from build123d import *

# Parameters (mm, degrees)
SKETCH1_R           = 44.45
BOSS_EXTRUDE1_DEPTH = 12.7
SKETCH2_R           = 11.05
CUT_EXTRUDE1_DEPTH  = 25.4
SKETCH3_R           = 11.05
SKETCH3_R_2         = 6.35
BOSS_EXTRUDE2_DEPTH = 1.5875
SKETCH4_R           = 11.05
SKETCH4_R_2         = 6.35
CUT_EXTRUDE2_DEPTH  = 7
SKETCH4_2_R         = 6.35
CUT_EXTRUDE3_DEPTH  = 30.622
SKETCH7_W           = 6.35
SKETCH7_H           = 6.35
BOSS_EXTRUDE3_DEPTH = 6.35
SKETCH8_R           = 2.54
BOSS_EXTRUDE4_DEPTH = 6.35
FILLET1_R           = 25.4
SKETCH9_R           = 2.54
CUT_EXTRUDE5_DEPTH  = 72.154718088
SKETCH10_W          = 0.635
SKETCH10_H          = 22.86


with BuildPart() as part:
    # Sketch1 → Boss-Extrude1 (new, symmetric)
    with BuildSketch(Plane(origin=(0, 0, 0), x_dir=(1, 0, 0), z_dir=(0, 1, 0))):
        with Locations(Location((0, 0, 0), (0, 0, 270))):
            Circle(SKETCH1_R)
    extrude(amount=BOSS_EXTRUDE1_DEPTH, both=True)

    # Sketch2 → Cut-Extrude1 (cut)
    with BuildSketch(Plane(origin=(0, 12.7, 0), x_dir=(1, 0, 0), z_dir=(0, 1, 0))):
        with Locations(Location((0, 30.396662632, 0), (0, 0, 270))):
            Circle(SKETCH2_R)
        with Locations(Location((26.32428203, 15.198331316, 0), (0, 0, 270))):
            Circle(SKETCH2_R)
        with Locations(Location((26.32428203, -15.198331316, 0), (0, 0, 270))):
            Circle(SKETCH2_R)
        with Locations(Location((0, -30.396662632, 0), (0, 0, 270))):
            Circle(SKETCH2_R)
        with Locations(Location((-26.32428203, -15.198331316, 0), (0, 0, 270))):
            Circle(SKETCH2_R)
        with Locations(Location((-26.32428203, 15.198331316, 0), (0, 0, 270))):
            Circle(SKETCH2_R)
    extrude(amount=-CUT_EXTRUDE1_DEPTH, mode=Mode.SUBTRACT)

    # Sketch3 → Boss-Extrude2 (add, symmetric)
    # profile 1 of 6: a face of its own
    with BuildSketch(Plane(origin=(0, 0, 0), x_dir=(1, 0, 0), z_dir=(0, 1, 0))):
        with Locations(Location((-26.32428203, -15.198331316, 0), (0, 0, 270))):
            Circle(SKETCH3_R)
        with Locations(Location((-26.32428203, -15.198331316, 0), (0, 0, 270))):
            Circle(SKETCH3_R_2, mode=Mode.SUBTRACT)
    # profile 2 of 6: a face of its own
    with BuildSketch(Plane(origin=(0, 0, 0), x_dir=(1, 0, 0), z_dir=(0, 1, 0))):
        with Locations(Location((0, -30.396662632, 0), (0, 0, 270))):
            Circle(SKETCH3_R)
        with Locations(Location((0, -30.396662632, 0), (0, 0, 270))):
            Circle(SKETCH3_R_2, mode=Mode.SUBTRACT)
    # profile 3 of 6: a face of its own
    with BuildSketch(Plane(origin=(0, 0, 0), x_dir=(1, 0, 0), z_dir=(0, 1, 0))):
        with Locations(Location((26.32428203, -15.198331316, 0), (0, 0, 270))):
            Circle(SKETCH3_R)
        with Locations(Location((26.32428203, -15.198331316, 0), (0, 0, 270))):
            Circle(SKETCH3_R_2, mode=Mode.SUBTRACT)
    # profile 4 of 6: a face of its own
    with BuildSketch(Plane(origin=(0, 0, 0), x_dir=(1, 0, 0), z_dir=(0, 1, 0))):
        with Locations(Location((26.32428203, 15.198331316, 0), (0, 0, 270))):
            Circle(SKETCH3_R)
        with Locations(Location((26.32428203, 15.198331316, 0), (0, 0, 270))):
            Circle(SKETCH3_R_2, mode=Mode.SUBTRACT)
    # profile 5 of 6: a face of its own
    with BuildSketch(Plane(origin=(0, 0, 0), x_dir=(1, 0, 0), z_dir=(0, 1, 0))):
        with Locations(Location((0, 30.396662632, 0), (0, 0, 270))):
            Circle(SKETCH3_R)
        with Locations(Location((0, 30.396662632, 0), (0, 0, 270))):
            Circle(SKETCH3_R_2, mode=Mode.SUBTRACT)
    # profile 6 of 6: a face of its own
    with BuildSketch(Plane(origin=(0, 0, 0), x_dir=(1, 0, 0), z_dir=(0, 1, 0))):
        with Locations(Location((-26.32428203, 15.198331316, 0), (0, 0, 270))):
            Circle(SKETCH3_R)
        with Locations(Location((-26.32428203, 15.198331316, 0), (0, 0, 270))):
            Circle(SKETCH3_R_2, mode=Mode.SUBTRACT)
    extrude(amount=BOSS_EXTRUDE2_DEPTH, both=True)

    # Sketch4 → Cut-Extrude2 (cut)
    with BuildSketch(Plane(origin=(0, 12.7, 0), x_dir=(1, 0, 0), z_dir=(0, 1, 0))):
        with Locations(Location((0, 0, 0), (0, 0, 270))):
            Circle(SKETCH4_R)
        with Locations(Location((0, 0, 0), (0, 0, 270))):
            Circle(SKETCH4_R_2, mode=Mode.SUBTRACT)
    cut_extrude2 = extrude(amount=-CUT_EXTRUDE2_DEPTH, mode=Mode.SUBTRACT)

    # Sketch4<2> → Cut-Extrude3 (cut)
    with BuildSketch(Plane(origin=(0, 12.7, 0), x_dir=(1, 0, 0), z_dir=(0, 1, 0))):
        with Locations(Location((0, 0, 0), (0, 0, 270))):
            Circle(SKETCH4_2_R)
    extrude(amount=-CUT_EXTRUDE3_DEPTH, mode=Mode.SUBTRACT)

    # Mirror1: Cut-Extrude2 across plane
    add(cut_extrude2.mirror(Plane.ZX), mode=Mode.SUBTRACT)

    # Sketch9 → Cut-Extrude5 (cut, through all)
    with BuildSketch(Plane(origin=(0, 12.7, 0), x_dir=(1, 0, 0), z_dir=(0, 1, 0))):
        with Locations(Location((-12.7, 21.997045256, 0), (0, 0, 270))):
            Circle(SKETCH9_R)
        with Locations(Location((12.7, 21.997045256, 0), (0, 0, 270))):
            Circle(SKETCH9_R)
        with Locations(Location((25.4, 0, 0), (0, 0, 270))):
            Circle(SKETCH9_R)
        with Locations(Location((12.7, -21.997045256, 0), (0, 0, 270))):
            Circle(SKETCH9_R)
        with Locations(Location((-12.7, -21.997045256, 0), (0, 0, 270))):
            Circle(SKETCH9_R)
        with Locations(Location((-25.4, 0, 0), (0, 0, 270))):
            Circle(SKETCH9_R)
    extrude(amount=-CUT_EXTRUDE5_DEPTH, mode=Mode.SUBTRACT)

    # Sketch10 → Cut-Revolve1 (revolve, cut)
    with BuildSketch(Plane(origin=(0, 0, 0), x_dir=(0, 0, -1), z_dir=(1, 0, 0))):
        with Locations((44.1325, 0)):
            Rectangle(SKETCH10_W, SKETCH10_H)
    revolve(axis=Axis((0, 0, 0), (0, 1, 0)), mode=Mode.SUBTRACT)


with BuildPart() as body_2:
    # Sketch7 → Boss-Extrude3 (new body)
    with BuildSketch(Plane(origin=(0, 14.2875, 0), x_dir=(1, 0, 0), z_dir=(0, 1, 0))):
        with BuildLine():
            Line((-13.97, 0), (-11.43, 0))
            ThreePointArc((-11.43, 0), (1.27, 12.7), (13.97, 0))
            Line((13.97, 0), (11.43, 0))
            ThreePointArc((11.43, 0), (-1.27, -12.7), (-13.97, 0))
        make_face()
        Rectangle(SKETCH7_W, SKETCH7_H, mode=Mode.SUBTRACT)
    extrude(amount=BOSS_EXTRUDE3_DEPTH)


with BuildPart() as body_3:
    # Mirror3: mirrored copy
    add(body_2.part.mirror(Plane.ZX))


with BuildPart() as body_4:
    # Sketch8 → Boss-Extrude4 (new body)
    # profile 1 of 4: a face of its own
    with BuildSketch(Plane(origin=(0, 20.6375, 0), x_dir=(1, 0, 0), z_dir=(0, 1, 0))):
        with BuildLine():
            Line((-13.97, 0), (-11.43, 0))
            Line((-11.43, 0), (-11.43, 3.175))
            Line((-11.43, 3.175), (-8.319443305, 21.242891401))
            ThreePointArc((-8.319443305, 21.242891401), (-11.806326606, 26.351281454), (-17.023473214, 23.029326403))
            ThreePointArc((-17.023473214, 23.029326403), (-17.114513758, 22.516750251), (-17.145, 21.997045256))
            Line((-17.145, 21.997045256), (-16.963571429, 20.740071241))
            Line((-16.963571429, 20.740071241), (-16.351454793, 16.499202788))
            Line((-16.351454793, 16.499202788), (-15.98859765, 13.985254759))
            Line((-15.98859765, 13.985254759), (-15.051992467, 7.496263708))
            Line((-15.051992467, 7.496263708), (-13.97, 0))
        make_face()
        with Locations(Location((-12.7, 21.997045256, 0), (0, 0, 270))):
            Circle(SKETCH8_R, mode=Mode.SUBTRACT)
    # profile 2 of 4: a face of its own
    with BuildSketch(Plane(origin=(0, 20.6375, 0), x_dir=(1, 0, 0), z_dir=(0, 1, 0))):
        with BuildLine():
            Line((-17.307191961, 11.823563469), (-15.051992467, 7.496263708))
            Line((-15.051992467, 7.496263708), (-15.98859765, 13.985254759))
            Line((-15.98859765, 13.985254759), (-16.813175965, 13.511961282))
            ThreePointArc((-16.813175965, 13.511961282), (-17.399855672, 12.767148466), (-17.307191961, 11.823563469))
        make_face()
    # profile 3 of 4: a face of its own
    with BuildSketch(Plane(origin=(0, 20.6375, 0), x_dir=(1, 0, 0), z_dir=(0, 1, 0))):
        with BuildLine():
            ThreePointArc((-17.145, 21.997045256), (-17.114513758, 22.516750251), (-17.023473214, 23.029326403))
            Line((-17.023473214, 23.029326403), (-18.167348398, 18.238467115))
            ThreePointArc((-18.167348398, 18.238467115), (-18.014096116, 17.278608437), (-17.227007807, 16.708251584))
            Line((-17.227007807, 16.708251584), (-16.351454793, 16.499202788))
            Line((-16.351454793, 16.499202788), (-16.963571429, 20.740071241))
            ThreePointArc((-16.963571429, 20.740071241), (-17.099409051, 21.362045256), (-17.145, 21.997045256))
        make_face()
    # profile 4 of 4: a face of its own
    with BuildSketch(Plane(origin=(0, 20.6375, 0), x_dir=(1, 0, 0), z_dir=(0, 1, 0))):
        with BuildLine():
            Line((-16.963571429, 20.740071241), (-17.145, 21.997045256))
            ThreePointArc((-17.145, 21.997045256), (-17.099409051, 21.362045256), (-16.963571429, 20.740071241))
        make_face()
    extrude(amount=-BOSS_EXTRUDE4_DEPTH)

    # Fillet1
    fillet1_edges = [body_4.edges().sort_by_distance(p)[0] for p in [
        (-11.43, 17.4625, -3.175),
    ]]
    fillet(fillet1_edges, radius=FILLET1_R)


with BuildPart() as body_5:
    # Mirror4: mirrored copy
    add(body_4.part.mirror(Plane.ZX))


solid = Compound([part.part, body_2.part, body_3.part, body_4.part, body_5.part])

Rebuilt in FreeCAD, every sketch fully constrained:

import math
import FreeCAD as App
import Part
import Sketcher
Q = App.Units.Quantity


def edges_at(feature, points):
    """Names of the edges that pass closest to the given points."""
    edges = feature.Shape.Edges
    near = lambda p: min(range(len(edges)), key=lambda i: edges[i].distToShape(Part.Vertex(*p))[0])
    return sorted({f"Edge{near(p) + 1}" for p in points})

doc = App.newDocument("Part")
body = doc.addObject("PartDesign::Body", "Body")

sketch1 = body.newObject("Sketcher::SketchObject", "Sketch")
sketch1.AttachmentSupport = (doc.getObject("XZ_Plane"), [""])
sketch1.MapMode = "FlatFace"
sketch1.addGeometry(Part.Circle(App.Vector(0, 0, 0), App.Vector(0, 0, 1), 44), False)
sketch1.addConstraint([
    Sketcher.Constraint("Coincident", 0, 3, -1, 1),
    Sketcher.Constraint("Diameter", 0, Q("3.5 in")),
])
pad1 = body.newObject("PartDesign::Pad", "Pad")
pad1.Profile = sketch1
pad1.Length = Q("1 in")
pad1.Midplane = True

sketch2 = body.newObject("Sketcher::SketchObject", "Sketch001")
sketch2.AttachmentSupport = (doc.getObject("XZ_Plane"), [""])
sketch2.MapMode = "FlatFace"
sketch2.AttachmentOffset = App.Placement(App.Vector(0, 0, -0.5 * 25.4), App.Rotation())
sketch2.addGeometry([
    Part.Circle(App.Vector(0, -30, 0), App.Vector(0, 0, 1), 11),
    Part.Circle(App.Vector(26, -15, 0), App.Vector(0, 0, 1), 11),
    Part.Circle(App.Vector(26, 15, 0), App.Vector(0, 0, 1), 11),
    Part.Circle(App.Vector(0, 30, 0), App.Vector(0, 0, 1), 11),
    Part.Circle(App.Vector(-26, 15, 0), App.Vector(0, 0, 1), 11),
    Part.Circle(App.Vector(-26, -15, 0), App.Vector(0, 0, 1), 11),
], False)
sketch2.addConstraint([
    Sketcher.Constraint("Equal", 0, 1),
    Sketcher.Constraint("Equal", 1, 2),
    Sketcher.Constraint("Equal", 2, 3),
    Sketcher.Constraint("Equal", 3, 4),
    Sketcher.Constraint("Equal", 4, 5),
    Sketcher.Constraint("Symmetric", 0, 3, 3, 3, -1, 1),
    Sketcher.Constraint("Symmetric", 1, 3, 4, 3, -1, 1),
    Sketcher.Constraint("Symmetric", 2, 3, 5, 3, -1, 1),
    Sketcher.Constraint("Symmetric", 2, 3, 4, 3, -2),
    Sketcher.Constraint("PointOnObject", 0, 3, -2),
    Sketcher.Constraint("Diameter", 0, 22.1),
    Sketcher.Constraint("DistanceY", 1, 3, -1, 1, 15.198331),
    Sketcher.Constraint("DistanceY", 0, 3, 1, 3, 15.198331),
    Sketcher.Constraint("DistanceX", -1, 1, 1, 3, 26.324282),
])
pocket1 = body.newObject("PartDesign::Pocket", "Pocket")
pocket1.Profile = sketch2
pocket1.Length = Q("1 in")
pocket1.Reversed = True

sketch3 = body.newObject("Sketcher::SketchObject", "Sketch002")
sketch3.AttachmentSupport = (doc.getObject("XZ_Plane"), [""])
sketch3.MapMode = "FlatFace"
sketch3.addGeometry([
    Part.Circle(App.Vector(-26, 15, 0), App.Vector(0, 0, 1), 11),
    Part.Circle(App.Vector(-26, 15, 0), App.Vector(0, 0, 1), 6),
    Part.Circle(App.Vector(0, 30, 0), App.Vector(0, 0, 1), 11),
    Part.Circle(App.Vector(0, 30, 0), App.Vector(0, 0, 1), 6),
    Part.Circle(App.Vector(26, 15, 0), App.Vector(0, 0, 1), 11),
    Part.Circle(App.Vector(26, 15, 0), App.Vector(0, 0, 1), 6),
    Part.Circle(App.Vector(26, -15, 0), App.Vector(0, 0, 1), 11),
    Part.Circle(App.Vector(26, -15, 0), App.Vector(0, 0, 1), 6),
    Part.Circle(App.Vector(0, -30, 0), App.Vector(0, 0, 1), 11),
    Part.Circle(App.Vector(0, -30, 0), App.Vector(0, 0, 1), 6),
    Part.Circle(App.Vector(-26, -15, 0), App.Vector(0, 0, 1), 11),
    Part.Circle(App.Vector(-26, -15, 0), App.Vector(0, 0, 1), 6),
], False)
sketch3.addConstraint([
    Sketcher.Constraint("Coincident", 1, 3, 0, 3),
    Sketcher.Constraint("Coincident", 3, 3, 2, 3),
    Sketcher.Constraint("Coincident", 5, 3, 4, 3),
    Sketcher.Constraint("Coincident", 7, 3, 6, 3),
    Sketcher.Constraint("Coincident", 9, 3, 8, 3),
    Sketcher.Constraint("Coincident", 11, 3, 10, 3),
    Sketcher.Constraint("Equal", 0, 2),
    Sketcher.Constraint("Equal", 1, 3),
    Sketcher.Constraint("Equal", 2, 4),
    Sketcher.Constraint("Equal", 3, 5),
    Sketcher.Constraint("Equal", 4, 6),
    Sketcher.Constraint("Equal", 5, 7),
    Sketcher.Constraint("Equal", 6, 8),
    Sketcher.Constraint("Equal", 7, 9),
    Sketcher.Constraint("Equal", 8, 10),
    Sketcher.Constraint("Equal", 9, 11),
    Sketcher.Constraint("Symmetric", 0, 3, 6, 3, -1, 1),
    Sketcher.Constraint("Symmetric", 2, 3, 8, 3, -1, 1),
    Sketcher.Constraint("Symmetric", 4, 3, 10, 3, -1, 1),
    Sketcher.Constraint("Symmetric", 0, 3, 4, 3, -2),
    Sketcher.Constraint("PointOnObject", 2, 3, -2),
    Sketcher.Constraint("Diameter", 1, Q("0.5 in")),
    Sketcher.Constraint("Diameter", 0, 22.1),
    Sketcher.Constraint("DistanceY", -1, 1, 0, 3, 15.198331),
    Sketcher.Constraint("DistanceY", 0, 3, 2, 3, 15.198331),
    Sketcher.Constraint("DistanceX", 0, 3, -1, 1, 26.324282),
])
pad2 = body.newObject("PartDesign::Pad", "Pad001")
pad2.Profile = sketch3
pad2.Length = Q("0.125 in")
pad2.Midplane = True

sketch4 = body.newObject("Sketcher::SketchObject", "Sketch003")
sketch4.AttachmentSupport = (doc.getObject("XZ_Plane"), [""])
sketch4.MapMode = "FlatFace"
sketch4.AttachmentOffset = App.Placement(App.Vector(0, 0, -0.5 * 25.4), App.Rotation())
sketch4.addGeometry([
    Part.Circle(App.Vector(0, 0, 0), App.Vector(0, 0, 1), 11),
    Part.Circle(App.Vector(0, 0, 0), App.Vector(0, 0, 1), 6),
], False)
sketch4.addConstraint([
    Sketcher.Constraint("Coincident", 0, 3, -1, 1),
    Sketcher.Constraint("Coincident", 1, 3, -1, 1),
    Sketcher.Constraint("Diameter", 1, Q("0.5 in")),
    Sketcher.Constraint("Diameter", 0, 22.1),
])
pocket2 = body.newObject("PartDesign::Pocket", "Pocket001")
pocket2.Profile = sketch4
pocket2.Length = 7
pocket2.Reversed = True

sketch5 = body.newObject("Sketcher::SketchObject", "Sketch004")
sketch5.AttachmentSupport = (doc.getObject("XZ_Plane"), [""])
sketch5.MapMode = "FlatFace"
sketch5.AttachmentOffset = App.Placement(App.Vector(0, 0, -0.5 * 25.4), App.Rotation())
sketch5.addGeometry(Part.Circle(App.Vector(0, 0, 0), App.Vector(0, 0, 1), 6), False)
sketch5.addConstraint([
    Sketcher.Constraint("Coincident", 0, 3, -1, 1),
    Sketcher.Constraint("Diameter", 0, Q("0.5 in")),
])
pocket3 = body.newObject("PartDesign::Pocket", "Pocket002")
pocket3.Profile = sketch5
pocket3.Length = 30.622
pocket3.Reversed = True
doc.recompute()

mirrored = body.newObject("PartDesign::Mirrored", "Mirrored")
mirrored.Originals = [pocket2]
mirrored.MirrorPlane = (doc.getObject("XZ_Plane"), [""])
body.Tip = mirrored

sketch6 = body.newObject("Sketcher::SketchObject", "Sketch005")
sketch6.AttachmentSupport = (doc.getObject("XZ_Plane"), [""])
sketch6.MapMode = "FlatFace"
sketch6.AttachmentOffset = App.Placement(App.Vector(0, 0, -0.5 * 25.4), App.Rotation())
sketch6.addGeometry([
    Part.Circle(App.Vector(-12.7, -22, 0), App.Vector(0, 0, 1), 2.5),
    Part.Circle(App.Vector(12.7, -22, 0), App.Vector(0, 0, 1), 2.5),
    Part.Circle(App.Vector(25.4, 0, 0), App.Vector(0, 0, 1), 2.5),
    Part.Circle(App.Vector(12.7, 22, 0), App.Vector(0, 0, 1), 2.5),
    Part.Circle(App.Vector(-12.7, 22, 0), App.Vector(0, 0, 1), 2.5),
    Part.Circle(App.Vector(-25.4, 0, 0), App.Vector(0, 0, 1), 2.5),
], False)
sketch6.addConstraint([
    Sketcher.Constraint("Equal", 0, 1),
    Sketcher.Constraint("Equal", 1, 2),
    Sketcher.Constraint("Equal", 2, 3),
    Sketcher.Constraint("Equal", 3, 4),
    Sketcher.Constraint("Equal", 4, 5),
    Sketcher.Constraint("Symmetric", 0, 3, 3, 3, -1, 1),
    Sketcher.Constraint("Symmetric", 1, 3, 4, 3, -1, 1),
    Sketcher.Constraint("Symmetric", 2, 3, 5, 3, -1, 1),
    Sketcher.Constraint("Symmetric", 0, 3, 1, 3, -2),
    Sketcher.Constraint("PointOnObject", 2, 3, -1),
    Sketcher.Constraint("Diameter", 0, Q("0.2 in")),
    Sketcher.Constraint("DistanceX", -1, 1, 2, 3, Q("1 in")),
    Sketcher.Constraint("DistanceX", 0, 3, 1, 3, Q("1 in")),
    Sketcher.Constraint("DistanceY", 1, 3, 3, 3, 43.994091),
])
pocket4 = body.newObject("PartDesign::Pocket", "Pocket003")
pocket4.Profile = sketch6
pocket4.Type = "ThroughAll"
pocket4.Reversed = True

sketch7 = body.newObject("Sketcher::SketchObject", "Sketch006")
sketch7.AttachmentSupport = (doc.getObject("YZ_Plane"), [""])
sketch7.MapMode = "FlatFace"
sketch7.addGeometry([
    Part.LineSegment(App.Vector(11.4, -43.8, 0), App.Vector(-11.4, -43.8, 0)),
    Part.LineSegment(App.Vector(-11.4, -43.8, 0), App.Vector(-11.4, -44.5, 0)),
    Part.LineSegment(App.Vector(-11.4, -44.5, 0), App.Vector(11.4, -44.5, 0)),
    Part.LineSegment(App.Vector(11.4, -44.5, 0), App.Vector(11.4, -43.8, 0)),
], False)
sketch7.addConstraint([
    Sketcher.Constraint("Coincident", 0, 2, 1, 1),
    Sketcher.Constraint("Coincident", 1, 2, 2, 1),
    Sketcher.Constraint("Coincident", 2, 2, 3, 1),
    Sketcher.Constraint("Coincident", 3, 2, 0, 1),
    Sketcher.Constraint("Horizontal", 0),
    Sketcher.Constraint("Vertical", 1),
    Sketcher.Constraint("Horizontal", 2),
    Sketcher.Constraint("Vertical", 3),
    Sketcher.Constraint("DistanceX", 0, 2, 0, 1, Q("0.9 in")),
    Sketcher.Constraint("DistanceY", 1, 2, 1, 1, Q("0.025 in")),
    Sketcher.Constraint("DistanceX", 0, 2, -1, 1, Q("0.45 in")),
    Sketcher.Constraint("DistanceY", 1, 2, -1, 1, Q("1.75 in")),
])
groove = body.newObject("PartDesign::Groove", "Groove")
groove.Profile = sketch7
groove.ReferenceAxis = (sketch7, ["H_Axis"])
groove.Angle = 360
body2 = doc.addObject("PartDesign::Body", "Body001")

sketch8 = body2.newObject("Sketcher::SketchObject", "Sketch007")
sketch8.AttachmentSupport = (doc.getObject("XZ_Plane001"), [""])
sketch8.MapMode = "FlatFace"
sketch8.AttachmentOffset = App.Placement(App.Vector(0, 0, -0.5625 * 25.4), App.Rotation())
sketch8.addGeometry([
    Part.LineSegment(App.Vector(-11.4, 0, 0), App.Vector(-14, 0, 0)),
    Part.ArcOfCircle(Part.Circle(App.Vector(-1.3, 0, 0), App.Vector(0, 0, 1), 12.7), math.radians(0), math.radians(180)),
    Part.LineSegment(App.Vector(11.4, 0, 0), App.Vector(14, 0, 0)),
    Part.ArcOfCircle(Part.Circle(App.Vector(1.3, 0, 0), App.Vector(0, 0, 1), 12.7), math.radians(180), math.radians(360)),
    Part.LineSegment(App.Vector(-3.2, 3.2, 0), App.Vector(-3.2, -3.2, 0)),
    Part.LineSegment(App.Vector(-3.2, -3.2, 0), App.Vector(3.2, -3.2, 0)),
    Part.LineSegment(App.Vector(3.2, -3.2, 0), App.Vector(3.2, 3.2, 0)),
    Part.LineSegment(App.Vector(3.2, 3.2, 0), App.Vector(-3.2, 3.2, 0)),
], False)
sketch8.addConstraint([
    Sketcher.Constraint("Coincident", 0, 2, 1, 2),
    Sketcher.Constraint("Coincident", 1, 1, 2, 1),
    Sketcher.Constraint("Coincident", 2, 2, 3, 2),
    Sketcher.Constraint("Coincident", 3, 1, 0, 1),
    Sketcher.Constraint("Coincident", 4, 2, 5, 1),
    Sketcher.Constraint("Coincident", 5, 2, 6, 1),
    Sketcher.Constraint("Coincident", 6, 2, 7, 1),
    Sketcher.Constraint("Coincident", 7, 2, 4, 1),
    Sketcher.Constraint("Horizontal", 0),
    Sketcher.Constraint("Horizontal", 2),
    Sketcher.Constraint("Vertical", 4),
    Sketcher.Constraint("Horizontal", 5),
    Sketcher.Constraint("Vertical", 6),
    Sketcher.Constraint("Horizontal", 7),
    Sketcher.Constraint("Equal", 1, 3),
    Sketcher.Constraint("Symmetric", 1, 3, 3, 3, -1, 1),
    Sketcher.Constraint("Symmetric", 4, 2, 6, 2, -1, 1),
    Sketcher.Constraint("PointOnObject", 1, 3, -1),
    Sketcher.Constraint("PointOnObject", 0, 2, -1),
    Sketcher.Constraint("PointOnObject", 1, 1, -1),
    Sketcher.Constraint("Equal", 7, 4),
    Sketcher.Constraint("Radius", 1, Q("0.5 in")),
    Sketcher.Constraint("DistanceX", 0, 2, 0, 1, Q("0.1 in")),
    Sketcher.Constraint("DistanceX", 5, 1, 5, 2, Q("0.25 in")),
])
pad3 = body2.newObject("PartDesign::Pad", "Pad002")
pad3.Profile = sketch8
pad3.Length = Q("0.25 in")
pad3.Reversed = True
body3 = doc.addObject("PartDesign::Body", "Body002")
doc.recompute()

mirroring = doc.addObject("Part::Mirroring", "Mirroring")
mirroring.Source = body2
mirroring.Base = App.Vector(0, 0, 0)
mirroring.Normal = App.Vector(0, 1, 0)
body3.BaseFeature = mirroring
doc.recompute()
body4 = doc.addObject("PartDesign::Body", "Body003")

sketch9 = body4.newObject("Sketcher::SketchObject", "Sketch008")
sketch9.AttachmentSupport = (doc.getObject("XZ_Plane003"), [""])
sketch9.MapMode = "FlatFace"
sketch9.AttachmentOffset = App.Placement(App.Vector(0, 0, -0.8125 * 25.4), App.Rotation())
sketch9.addGeometry([
    Part.LineSegment(App.Vector(-14, 0, 0), App.Vector(-11.4, 0, 0)),
    Part.LineSegment(App.Vector(-11.4, 0, 0), App.Vector(-11.4, -3.2, 0)),
    Part.LineSegment(App.Vector(-11.4, -3.2, 0), App.Vector(-8.3, -21.2, 0)),
    Part.ArcOfCircle(Part.Circle(App.Vector(-12.7, -22, 0), App.Vector(0, 0, 1), 4.4), math.radians(-167), math.radians(10)),
    Part.LineSegment(App.Vector(-17, -23, 0), App.Vector(-18.2, -18.2, 0)),
    Part.ArcOfCircle(Part.Circle(App.Vector(-16.9, -17.9, 0), App.Vector(0, 0, 1), 1.3), math.radians(103), math.radians(193)),
    Part.LineSegment(App.Vector(-17.2, -16.7, 0), App.Vector(-16.4, -16.5, 0)),
    Part.LineSegment(App.Vector(-16.4, -16.5, 0), App.Vector(-16, -14, 0)),
    Part.LineSegment(App.Vector(-16, -14, 0), App.Vector(-16.8, -13.5, 0)),
    Part.ArcOfCircle(Part.Circle(App.Vector(-16.2, -12.4, 0), App.Vector(0, 0, 1), 1.3), math.radians(152), math.radians(240)),
    Part.LineSegment(App.Vector(-17.3, -11.8, 0), App.Vector(-15.1, -7.5, 0)),
    Part.LineSegment(App.Vector(-15.1, -7.5, 0), App.Vector(-14, 0, 0)),
    Part.Circle(App.Vector(-12.7, -22, 0), App.Vector(0, 0, 1), 2.5),
], False)
sketch9.addConstraint([
    Sketcher.Constraint("Coincident", 0, 2, 1, 1),
    Sketcher.Constraint("Coincident", 1, 2, 2, 1),
    Sketcher.Constraint("Tangent", 2, 2, 3, 2),
    Sketcher.Constraint("Tangent", 3, 1, 4, 1),
    Sketcher.Constraint("Tangent", 4, 2, 5, 2),
    Sketcher.Constraint("Tangent", 5, 1, 6, 1),
    Sketcher.Constraint("Coincident", 6, 2, 7, 1),
    Sketcher.Constraint("Coincident", 7, 2, 8, 1),
    Sketcher.Constraint("Tangent", 8, 2, 9, 2),
    Sketcher.Constraint("Tangent", 9, 1, 10, 1),
    Sketcher.Constraint("Coincident", 10, 2, 11, 1),
    Sketcher.Constraint("Coincident", 11, 2, 0, 1),
    Sketcher.Constraint("Horizontal", 0),
    Sketcher.Constraint("Vertical", 1),
    Sketcher.Constraint("Coincident", 12, 3, 3, 3),
    Sketcher.Constraint("Equal", 5, 9),
    Sketcher.Constraint("PointOnObject", 0, 2, -1),
    Sketcher.Constraint("Perpendicular", 4, 6),
    Sketcher.Constraint("Parallel", 7, 11),
    Sketcher.Constraint("Diameter", 12, Q("0.2 in")),
    Sketcher.Constraint("Radius", 5, Q("0.05 in")),
    Sketcher.Constraint("DistanceX", 0, 1, 0, 2, Q("0.1 in")),
    Sketcher.Constraint("Radius", 3, Q("0.175 in")),
    Sketcher.Constraint("Distance", 7, Q("0.1 in")),
    Sketcher.Constraint("DistanceX", 3, 3, -1, 1, Q("0.5 in")),
    Sketcher.Constraint("DistanceY", 1, 2, 1, 1, Q("0.125 in")),
    Sketcher.Constraint("DistanceX", 0, 2, -1, 1, Q("0.45 in")),
    Sketcher.Constraint("DistanceX", 9, 1, 10, 2, 2.255199),
    Sketcher.Constraint("DistanceY", 9, 1, 10, 2, 4.3273),
    Sketcher.Constraint("DistanceX", 5, 3, -1, 1, 16.93207),
    Sketcher.Constraint("DistanceY", 5, 3, -1, 1, 17.94353),
    Sketcher.Constraint("DistanceX", 9, 3, -1, 1, 16.18096),
    Sketcher.Constraint("DistanceY", 2, 2, -1, 1, 21.242891),
    Sketcher.Constraint("DistanceY", 8, 2, -1, 1, 13.511961),
    Sketcher.Constraint("DistanceY", 3, 3, 9, 3, 9.586539),
])
pad4 = body4.newObject("PartDesign::Pad", "Pad003")
pad4.Profile = sketch9
pad4.Length = Q("0.25 in")
doc.recompute()

fillet = body4.newObject("PartDesign::Fillet", "Fillet")
fillet.Base = (pad4, edges_at(pad4, [(-11.43, 17.462, -3.175)]))
fillet.Radius = Q("1 in")
body5 = doc.addObject("PartDesign::Body", "Body004")
doc.recompute()

mirroring2 = doc.addObject("Part::Mirroring", "Mirroring001")
mirroring2.Source = body4
mirroring2.Base = App.Vector(0, 0, 0)
mirroring2.Normal = App.Vector(0, 1, 0)
body5.BaseFeature = mirroring2
doc.recompute()
mirroring.Visibility = False
mirroring2.Visibility = False

doc.recompute()
